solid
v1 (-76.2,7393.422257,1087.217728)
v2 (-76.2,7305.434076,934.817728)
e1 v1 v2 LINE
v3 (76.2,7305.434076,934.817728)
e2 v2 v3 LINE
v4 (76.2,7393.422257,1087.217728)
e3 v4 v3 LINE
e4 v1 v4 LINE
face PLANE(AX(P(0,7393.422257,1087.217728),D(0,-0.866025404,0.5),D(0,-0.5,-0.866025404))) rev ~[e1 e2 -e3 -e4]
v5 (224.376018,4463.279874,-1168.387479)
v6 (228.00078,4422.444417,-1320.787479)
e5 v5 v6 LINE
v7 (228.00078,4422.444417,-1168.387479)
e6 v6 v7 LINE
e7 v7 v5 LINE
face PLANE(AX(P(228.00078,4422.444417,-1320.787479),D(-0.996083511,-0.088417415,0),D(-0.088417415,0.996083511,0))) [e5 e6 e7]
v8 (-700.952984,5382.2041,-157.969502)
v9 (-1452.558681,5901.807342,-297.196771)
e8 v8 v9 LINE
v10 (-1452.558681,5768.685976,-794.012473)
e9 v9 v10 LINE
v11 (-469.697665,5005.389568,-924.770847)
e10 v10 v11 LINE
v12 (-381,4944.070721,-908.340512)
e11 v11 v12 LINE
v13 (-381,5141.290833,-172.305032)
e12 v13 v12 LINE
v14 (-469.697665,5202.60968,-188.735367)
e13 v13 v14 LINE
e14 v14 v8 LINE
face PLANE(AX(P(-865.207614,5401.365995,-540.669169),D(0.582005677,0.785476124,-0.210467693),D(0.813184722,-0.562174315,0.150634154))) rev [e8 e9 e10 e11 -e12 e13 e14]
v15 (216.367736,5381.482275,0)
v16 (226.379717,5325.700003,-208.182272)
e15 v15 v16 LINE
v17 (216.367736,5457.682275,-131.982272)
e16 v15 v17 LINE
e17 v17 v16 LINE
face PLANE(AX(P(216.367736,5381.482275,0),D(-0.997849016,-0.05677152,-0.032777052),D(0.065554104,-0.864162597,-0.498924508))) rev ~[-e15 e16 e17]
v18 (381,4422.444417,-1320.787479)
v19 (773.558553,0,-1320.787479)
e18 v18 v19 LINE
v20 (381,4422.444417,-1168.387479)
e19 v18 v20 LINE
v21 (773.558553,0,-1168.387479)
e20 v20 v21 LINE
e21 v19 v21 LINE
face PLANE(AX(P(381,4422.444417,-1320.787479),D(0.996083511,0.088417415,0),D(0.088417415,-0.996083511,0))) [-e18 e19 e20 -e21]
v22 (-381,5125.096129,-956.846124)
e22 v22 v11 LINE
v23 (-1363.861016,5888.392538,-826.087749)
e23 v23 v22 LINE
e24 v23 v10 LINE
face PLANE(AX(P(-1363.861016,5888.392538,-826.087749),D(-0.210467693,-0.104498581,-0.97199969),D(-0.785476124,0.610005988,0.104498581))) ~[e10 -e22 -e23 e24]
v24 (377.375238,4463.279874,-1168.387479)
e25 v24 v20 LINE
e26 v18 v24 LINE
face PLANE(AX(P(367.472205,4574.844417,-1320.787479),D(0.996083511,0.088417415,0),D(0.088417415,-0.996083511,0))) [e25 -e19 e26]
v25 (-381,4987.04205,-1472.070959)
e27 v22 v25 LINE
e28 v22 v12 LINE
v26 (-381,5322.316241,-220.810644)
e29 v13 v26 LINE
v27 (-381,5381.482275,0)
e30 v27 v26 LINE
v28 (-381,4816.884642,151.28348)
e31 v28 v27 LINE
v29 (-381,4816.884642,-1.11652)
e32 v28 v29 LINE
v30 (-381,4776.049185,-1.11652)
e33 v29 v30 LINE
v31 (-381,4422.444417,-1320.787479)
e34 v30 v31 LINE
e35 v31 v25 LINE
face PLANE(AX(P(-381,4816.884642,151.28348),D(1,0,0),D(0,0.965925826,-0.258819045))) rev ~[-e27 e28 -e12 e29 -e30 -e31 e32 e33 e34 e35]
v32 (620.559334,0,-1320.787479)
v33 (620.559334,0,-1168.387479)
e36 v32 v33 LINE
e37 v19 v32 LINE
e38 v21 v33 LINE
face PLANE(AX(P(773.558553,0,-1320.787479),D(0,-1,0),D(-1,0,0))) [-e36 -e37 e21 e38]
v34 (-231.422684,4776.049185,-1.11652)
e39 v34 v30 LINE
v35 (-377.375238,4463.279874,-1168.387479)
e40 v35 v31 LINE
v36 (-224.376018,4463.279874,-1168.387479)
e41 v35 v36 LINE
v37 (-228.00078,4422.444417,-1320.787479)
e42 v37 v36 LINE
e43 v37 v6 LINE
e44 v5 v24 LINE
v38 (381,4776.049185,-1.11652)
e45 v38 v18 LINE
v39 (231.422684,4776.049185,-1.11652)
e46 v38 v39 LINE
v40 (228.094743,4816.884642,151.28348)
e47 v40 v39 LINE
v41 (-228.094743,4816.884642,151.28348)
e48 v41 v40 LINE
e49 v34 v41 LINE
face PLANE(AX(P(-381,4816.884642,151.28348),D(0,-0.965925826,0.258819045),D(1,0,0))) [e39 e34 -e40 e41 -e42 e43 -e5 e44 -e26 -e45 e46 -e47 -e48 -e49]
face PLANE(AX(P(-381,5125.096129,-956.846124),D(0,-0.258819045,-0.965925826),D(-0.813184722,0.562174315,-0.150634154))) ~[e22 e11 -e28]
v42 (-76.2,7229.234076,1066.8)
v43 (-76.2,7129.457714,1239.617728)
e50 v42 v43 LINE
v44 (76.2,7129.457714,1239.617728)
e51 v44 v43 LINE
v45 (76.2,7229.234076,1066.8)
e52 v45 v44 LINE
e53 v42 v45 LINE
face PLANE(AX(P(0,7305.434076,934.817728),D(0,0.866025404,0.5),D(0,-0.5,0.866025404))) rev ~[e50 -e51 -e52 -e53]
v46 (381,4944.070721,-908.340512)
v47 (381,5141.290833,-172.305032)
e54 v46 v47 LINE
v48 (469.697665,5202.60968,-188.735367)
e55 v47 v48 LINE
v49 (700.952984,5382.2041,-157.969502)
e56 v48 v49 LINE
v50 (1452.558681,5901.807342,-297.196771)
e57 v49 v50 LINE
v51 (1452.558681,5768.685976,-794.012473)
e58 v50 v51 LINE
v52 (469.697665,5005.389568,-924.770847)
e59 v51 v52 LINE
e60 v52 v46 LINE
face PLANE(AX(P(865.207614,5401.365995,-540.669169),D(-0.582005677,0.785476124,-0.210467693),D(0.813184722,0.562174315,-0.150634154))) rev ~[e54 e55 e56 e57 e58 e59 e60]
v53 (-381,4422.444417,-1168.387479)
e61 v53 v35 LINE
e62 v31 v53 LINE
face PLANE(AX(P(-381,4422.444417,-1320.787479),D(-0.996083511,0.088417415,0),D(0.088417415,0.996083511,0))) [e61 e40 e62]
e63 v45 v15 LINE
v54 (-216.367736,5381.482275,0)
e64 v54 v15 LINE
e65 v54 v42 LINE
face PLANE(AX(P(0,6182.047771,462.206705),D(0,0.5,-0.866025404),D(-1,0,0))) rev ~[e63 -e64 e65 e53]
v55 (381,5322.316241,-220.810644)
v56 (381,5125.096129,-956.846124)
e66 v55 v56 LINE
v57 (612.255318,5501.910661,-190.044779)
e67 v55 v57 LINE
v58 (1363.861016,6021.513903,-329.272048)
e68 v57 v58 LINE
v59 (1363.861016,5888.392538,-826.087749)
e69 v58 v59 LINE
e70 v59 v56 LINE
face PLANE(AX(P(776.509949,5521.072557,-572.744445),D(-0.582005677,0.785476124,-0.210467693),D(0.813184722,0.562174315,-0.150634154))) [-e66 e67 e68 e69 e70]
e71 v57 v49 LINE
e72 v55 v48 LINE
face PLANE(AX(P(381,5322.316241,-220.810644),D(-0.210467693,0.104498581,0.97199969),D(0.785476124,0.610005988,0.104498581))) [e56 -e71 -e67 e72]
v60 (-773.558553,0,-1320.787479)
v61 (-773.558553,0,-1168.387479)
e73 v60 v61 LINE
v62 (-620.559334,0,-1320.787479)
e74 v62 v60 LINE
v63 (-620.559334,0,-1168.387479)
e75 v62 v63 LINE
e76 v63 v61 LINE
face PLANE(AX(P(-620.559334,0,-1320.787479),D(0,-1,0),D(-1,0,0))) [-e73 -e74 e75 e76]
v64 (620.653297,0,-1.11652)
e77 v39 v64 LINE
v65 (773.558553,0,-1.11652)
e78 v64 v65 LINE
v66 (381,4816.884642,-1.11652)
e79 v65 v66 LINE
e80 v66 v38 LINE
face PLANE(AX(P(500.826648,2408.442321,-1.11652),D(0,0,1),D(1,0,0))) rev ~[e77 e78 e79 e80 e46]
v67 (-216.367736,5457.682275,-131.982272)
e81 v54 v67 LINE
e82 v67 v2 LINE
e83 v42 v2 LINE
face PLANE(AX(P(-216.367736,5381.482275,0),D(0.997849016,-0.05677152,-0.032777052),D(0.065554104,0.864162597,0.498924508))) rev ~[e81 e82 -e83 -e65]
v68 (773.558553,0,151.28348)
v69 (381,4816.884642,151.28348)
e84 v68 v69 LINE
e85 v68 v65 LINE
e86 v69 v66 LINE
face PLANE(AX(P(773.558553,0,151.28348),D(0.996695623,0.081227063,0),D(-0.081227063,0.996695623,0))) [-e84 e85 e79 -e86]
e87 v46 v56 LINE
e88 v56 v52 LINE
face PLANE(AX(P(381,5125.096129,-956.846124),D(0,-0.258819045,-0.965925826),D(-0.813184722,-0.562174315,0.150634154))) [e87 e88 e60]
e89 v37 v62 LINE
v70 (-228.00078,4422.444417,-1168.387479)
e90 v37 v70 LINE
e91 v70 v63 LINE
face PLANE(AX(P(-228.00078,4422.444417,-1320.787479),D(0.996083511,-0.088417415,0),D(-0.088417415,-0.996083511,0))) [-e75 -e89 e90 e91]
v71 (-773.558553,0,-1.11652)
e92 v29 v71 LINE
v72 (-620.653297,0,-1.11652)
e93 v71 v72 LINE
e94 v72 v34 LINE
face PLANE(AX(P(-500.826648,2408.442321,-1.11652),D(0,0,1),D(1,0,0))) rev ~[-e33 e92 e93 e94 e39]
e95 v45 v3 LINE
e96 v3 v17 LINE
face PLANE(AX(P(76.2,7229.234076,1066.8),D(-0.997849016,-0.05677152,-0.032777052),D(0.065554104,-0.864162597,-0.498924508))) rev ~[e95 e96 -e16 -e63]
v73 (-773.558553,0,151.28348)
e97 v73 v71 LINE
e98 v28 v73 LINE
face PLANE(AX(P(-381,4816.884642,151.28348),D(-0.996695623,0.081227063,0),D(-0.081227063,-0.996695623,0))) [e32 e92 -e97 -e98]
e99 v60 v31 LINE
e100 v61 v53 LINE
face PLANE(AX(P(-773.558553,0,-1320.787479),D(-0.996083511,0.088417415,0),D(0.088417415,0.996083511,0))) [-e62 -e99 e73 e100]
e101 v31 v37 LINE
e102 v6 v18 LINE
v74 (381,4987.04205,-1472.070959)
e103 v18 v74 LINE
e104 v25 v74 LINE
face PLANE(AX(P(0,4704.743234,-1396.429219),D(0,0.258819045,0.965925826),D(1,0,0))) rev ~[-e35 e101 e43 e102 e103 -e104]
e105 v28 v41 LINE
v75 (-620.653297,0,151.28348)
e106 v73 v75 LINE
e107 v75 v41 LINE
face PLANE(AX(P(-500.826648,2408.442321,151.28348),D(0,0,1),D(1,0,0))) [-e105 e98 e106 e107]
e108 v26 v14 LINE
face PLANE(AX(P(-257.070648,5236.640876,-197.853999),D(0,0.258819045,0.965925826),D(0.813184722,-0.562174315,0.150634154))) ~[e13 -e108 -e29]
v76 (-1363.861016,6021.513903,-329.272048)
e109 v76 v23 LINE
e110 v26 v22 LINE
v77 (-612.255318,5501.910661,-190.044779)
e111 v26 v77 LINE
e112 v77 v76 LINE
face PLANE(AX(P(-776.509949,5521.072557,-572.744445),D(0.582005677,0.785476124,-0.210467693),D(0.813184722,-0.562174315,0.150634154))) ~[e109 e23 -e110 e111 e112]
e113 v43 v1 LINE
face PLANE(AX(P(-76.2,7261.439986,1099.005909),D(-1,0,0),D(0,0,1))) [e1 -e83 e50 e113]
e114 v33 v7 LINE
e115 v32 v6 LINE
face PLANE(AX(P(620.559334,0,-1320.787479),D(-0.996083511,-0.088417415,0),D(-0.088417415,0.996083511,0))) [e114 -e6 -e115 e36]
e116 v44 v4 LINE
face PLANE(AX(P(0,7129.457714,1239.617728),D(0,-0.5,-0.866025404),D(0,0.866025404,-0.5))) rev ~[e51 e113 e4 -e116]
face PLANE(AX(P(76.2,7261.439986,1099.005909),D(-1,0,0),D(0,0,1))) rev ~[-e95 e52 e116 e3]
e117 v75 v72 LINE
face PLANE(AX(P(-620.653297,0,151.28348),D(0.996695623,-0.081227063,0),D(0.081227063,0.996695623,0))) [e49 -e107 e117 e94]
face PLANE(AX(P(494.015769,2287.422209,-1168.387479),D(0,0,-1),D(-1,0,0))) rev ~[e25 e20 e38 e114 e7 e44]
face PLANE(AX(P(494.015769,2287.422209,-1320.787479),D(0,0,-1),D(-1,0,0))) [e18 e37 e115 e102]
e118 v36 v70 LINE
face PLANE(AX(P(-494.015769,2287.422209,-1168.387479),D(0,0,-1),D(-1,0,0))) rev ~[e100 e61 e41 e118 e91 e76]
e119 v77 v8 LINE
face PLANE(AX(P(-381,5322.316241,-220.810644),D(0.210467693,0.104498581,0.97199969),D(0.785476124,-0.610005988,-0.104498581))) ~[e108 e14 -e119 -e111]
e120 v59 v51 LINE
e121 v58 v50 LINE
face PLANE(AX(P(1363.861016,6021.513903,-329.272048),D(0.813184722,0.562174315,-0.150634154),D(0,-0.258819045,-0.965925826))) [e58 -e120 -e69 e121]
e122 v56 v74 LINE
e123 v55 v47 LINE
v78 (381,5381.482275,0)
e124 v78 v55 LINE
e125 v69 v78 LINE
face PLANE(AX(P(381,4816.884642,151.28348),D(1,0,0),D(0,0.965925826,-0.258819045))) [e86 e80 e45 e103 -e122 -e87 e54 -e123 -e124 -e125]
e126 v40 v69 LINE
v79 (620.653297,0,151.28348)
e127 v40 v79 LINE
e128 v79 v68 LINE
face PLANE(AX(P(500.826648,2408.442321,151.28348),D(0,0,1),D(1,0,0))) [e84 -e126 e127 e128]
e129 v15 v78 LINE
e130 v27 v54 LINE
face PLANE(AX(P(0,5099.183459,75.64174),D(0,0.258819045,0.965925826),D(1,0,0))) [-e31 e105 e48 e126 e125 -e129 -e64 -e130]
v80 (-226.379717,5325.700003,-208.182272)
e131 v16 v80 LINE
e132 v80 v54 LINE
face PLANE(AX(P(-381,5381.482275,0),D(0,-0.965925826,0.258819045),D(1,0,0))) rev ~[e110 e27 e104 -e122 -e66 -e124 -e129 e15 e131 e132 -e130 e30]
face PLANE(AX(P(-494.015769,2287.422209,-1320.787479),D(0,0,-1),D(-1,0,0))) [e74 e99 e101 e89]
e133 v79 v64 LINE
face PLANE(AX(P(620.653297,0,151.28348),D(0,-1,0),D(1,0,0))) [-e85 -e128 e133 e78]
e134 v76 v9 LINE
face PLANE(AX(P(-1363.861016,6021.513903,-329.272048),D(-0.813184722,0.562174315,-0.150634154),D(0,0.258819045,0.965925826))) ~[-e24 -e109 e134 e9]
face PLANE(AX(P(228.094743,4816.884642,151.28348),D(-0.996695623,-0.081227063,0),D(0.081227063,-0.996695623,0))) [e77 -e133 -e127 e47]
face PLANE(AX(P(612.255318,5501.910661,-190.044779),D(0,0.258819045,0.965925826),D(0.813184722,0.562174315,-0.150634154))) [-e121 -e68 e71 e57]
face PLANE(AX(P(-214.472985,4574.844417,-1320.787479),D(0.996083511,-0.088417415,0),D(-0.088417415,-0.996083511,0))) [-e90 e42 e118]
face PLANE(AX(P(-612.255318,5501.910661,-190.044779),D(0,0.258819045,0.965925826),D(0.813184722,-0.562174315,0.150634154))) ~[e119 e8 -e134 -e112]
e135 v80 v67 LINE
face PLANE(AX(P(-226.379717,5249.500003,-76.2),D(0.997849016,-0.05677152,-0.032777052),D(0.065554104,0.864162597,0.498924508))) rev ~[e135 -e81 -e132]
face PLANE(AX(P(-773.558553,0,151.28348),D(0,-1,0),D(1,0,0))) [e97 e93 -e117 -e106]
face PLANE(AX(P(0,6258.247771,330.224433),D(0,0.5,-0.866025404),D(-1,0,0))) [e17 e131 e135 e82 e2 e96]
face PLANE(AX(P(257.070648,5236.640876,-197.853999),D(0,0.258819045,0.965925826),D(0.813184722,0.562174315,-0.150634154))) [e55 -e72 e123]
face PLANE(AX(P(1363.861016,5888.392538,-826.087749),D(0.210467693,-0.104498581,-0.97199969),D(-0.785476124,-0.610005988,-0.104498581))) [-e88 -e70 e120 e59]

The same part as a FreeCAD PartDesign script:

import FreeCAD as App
import Part
import Sketcher
Q = App.Units.Quantity


def add_polygon(sketch, points):
    """Adds a closed chain of lines whose ends are joined by coincident constraints."""
    first, n = sketch.GeometryCount, len(points)
    for a, b in zip(points, points[1:] + points[:1]):
        sketch.addGeometry(Part.LineSegment(App.Vector(*a, 0), App.Vector(*b, 0)), False)
    for i in range(n):
        sketch.addConstraint(Sketcher.Constraint("Coincident", first + i, 2, first + (i + 1) % n, 1))

doc = App.newDocument("Part")
params = doc.addObject("Spreadsheet::Sheet", "Params")
for row, (alias, value) in enumerate([
    ("sketch1_width", "30 in"),
    ("pad1_length", "60 in"),
    ("sketch2_width", "6 in"),
    ("sketch2_height", "30 in"),
    ("pad2_length", "6 in"),
    ("sketch3_width", "6 in"),
    ("pad3_length", "6 in"),
    ("sketch4_length", "12 in"),
    ("pad4_length", "6 in"),
    ("pad5_length", "6 in"),
    ("pad6_length", "6 in"),
], start=1):
    params.set(f"A{row}", alias)
    params.set(f"B{row}", "=" + value)
    params.setAlias(f"B{row}", alias)

body = doc.addObject("PartDesign::Body", "Body")

# Sketch on an angled plane
sketch1 = doc.addObject("Sketcher::SketchObject", "Sketch")
body.addObject(sketch1)
sketch1.Placement = App.Placement(App.Vector(0, 360.490957, 1345.370569), App.Rotation(App.Vector(1, 0, 0), App.Vector(0, 0.965925826, -0.258819045), App.Vector(0, 0.258819045, 0.965925826), "ZXY"))
add_polygon(sketch1, [(-381, 5198), (-381, 4614), (381, 4614), (381, 5198)])  # lines 0-3
sketch1.addConstraint([
    Sketcher.Constraint("Vertical", 0),
    Sketcher.Constraint("Horizontal", 1),
    Sketcher.Constraint("Vertical", 2),
    Sketcher.Constraint("Horizontal", 3),
    Sketcher.Constraint("DistanceX", 1, 1, 1, 2, Q("30 in")),
    Sketcher.Constraint("DistanceX", 0, 2, -1, 1, Q("15 in")),
    Sketcher.Constraint("DistanceY", 0, 2, 0, 1, 584.51448),
    Sketcher.Constraint("DistanceY", -1, 1, 0, 2, 4613.598229),
])
sketch1.setExpression("Constraints[8]", "Params.sketch1_width")
pad1 = doc.addObject("PartDesign::Pad", "Pad")
body.addObject(pad1)
pad1.Profile = sketch1
pad1.setExpression("Length", "Params.pad1_length")
pad1.Reversed = True

# Sketch on an angled plane
sketch2 = doc.addObject("Sketcher::SketchObject", "Sketch001")
body.addObject(sketch2)
sketch2.Placement = App.Placement(App.Vector(-2331.096675, 3146.053127, -842.982395), App.Rotation(App.Vector(0.813184722, 0.562174315, -0.150634154), App.Vector(0, -0.258819045, -0.965925826), App.Vector(-0.582005677, 0.785476124, -0.210467693), "ZXY"))
add_polygon(sketch2, [(3335, -1164), (3620, -1240), (4544, -1240), (4544, -726), (3335, -402), (3183, -402), (3183, -1164)])  # lines 0-6
sketch2.addConstraint([
    Sketcher.Constraint("Horizontal", 1),
    Sketcher.Constraint("Vertical", 2),
    Sketcher.Constraint("Horizontal", 4),
    Sketcher.Constraint("Vertical", 5),
    Sketcher.Constraint("Horizontal", 6),
    Sketcher.Constraint("Parallel", 0, 3),
    Sketcher.Constraint("Vertical", 3, 2, 6, 2),
    Sketcher.Constraint("DistanceX", 4, 2, 4, 1, Q("6 in")),
    Sketcher.Constraint("DistanceY", 5, 2, 5, 1, Q("30 in")),
    Sketcher.Constraint("Angle", 0, Q("-15 deg")),
    Sketcher.Constraint("DistanceY", 0, 2, 3, 2, Q("33 in")),
    Sketcher.Constraint("DistanceX", 1, 1, 1, 2, 924.274249),
    Sketcher.Constraint("DistanceX", -1, 1, 0, 2, 3619.536765),
    Sketcher.Constraint("DistanceY", 0, 2, -1, 1, 1240.430104),
])
sketch2.setExpression("Constraints[14]", "Params.sketch2_width")
sketch2.setExpression("Constraints[15]", "Params.sketch2_height")
pad2 = doc.addObject("PartDesign::Pad", "Pad001")
body.addObject(pad2)
pad2.Profile = sketch2
pad2.setExpression("Length", "Params.pad2_length")
pad2.Reversed = True
doc.recompute()

mirrored = doc.addObject("PartDesign::Mirrored", "Mirrored")
body.addObject(mirrored)
mirrored.Originals = [pad2]
mirrored.MirrorPlane = (doc.YZ_Plane, [""])
body.Tip = mirrored

# Sketch on an angled plane
sketch3 = doc.addObject("Sketcher::SketchObject", "Sketch002")
body.addObject(sketch3)
sketch3.Placement = App.Placement(App.Vector(0, 1345.370569, -2330.25018), App.Rotation(App.Vector(1, 0, 0), App.Vector(0, 0.866025404, 0.5), App.Vector(0, -0.5, 0.866025404), "ZXY"))
add_polygon(sketch3, [(-76, 6794), (-216, 4661), (-226, 4508), (226, 4508), (216, 4661), (76, 6794)])  # lines 0-5
sketch3.addConstraint([
    Sketcher.Constraint("Horizontal", 2),
    Sketcher.Constraint("Horizontal", 5),
    Sketcher.Constraint("Symmetric", 0, 2, 3, 2, -2),
    Sketcher.Constraint("Parallel", 0, 1),
    Sketcher.Constraint("Parallel", 3, 4),
    Sketcher.Constraint("Equal", 1, 3),
    Sketcher.Constraint("DistanceX", 5, 2, 5, 1, Q("6 in")),
    Sketcher.Constraint("DistanceY", 1, 2, 0, 2, Q("6 in")),
    Sketcher.Constraint("DistanceY", 3, 2, 4, 2, Q("84 in")),
    Sketcher.Constraint("DistanceX", 2, 1, 2, 2, 452.759433),
    Sketcher.Constraint("DistanceY", -1, 1, 0, 2, 4660.500362),
])
sketch3.setExpression("Constraints[12]", "Params.sketch3_width")
pad3 = doc.addObject("PartDesign::Pad", "Pad002")
body.addObject(pad3)
pad3.Profile = sketch3
pad3.setExpression("Length", "Params.pad3_length")
pad3.Reversed = True

# Sketch on YZ plane
sketch4 = doc.addObject("Sketcher::SketchObject", "Sketch003")
body.addObject(sketch4)
sketch4.AttachmentSupport = (doc.YZ_Plane, [""])
sketch4.MapMode = "FlatFace"
add_polygon(sketch4, [(7129, 1240), (7305, 935), (7393, 1087)])  # lines 0-2
sketch4.addConstraint([
    Sketcher.Constraint("Perpendicular", 1, 2),
    Sketcher.Constraint("Distance", 2, Q("12 in")),
    Sketcher.Constraint("Angle", 0, Q("-60 deg")),
    Sketcher.Constraint("Angle", 1, Q("60 deg")),
    Sketcher.Constraint("DistanceY", -1, 1, 0, 2, 934.817728),
    Sketcher.Constraint("DistanceX", -1, 1, 0, 2, 7305.434076),
])
sketch4.setExpression("Constraints[4]", "Params.sketch4_length")
pad4 = doc.addObject("PartDesign::Pad", "Pad003")
body.addObject(pad4)
pad4.Profile = sketch4
pad4.setExpression("Length", "Params.pad4_length")
pad4.Midplane = True

# Sketch on XY plane
sketch5 = doc.addObject("Sketcher::SketchObject", "Sketch004")
body.addObject(sketch5)
sketch5.AttachmentSupport = (doc.XY_Plane, [""])
sketch5.MapMode = "FlatFace"
sketch5.AttachmentOffset = App.Placement(App.Vector(0, 0, 151.28348), App.Rotation())
add_polygon(sketch5, [(-381, 4817), (-774, 0), (-621, 0), (-228, 4817)])  # lines 0-3
add_polygon(sketch5, [(774, 0), (381, 4817), (228, 4817), (621, 0)])  # lines 4-7
sketch5.addConstraint([
    Sketcher.Constraint("Horizontal", 1),
    Sketcher.Constraint("Horizontal", 3),
    Sketcher.Constraint("Horizontal", 5),
    Sketcher.Constraint("Horizontal", 7),
    Sketcher.Constraint("Symmetric", 1, 2, 6, 2, -1, 1),
    Sketcher.Constraint("Symmetric", 3, 2, 4, 2, -2),
    Sketcher.Constraint("Symmetric", 0, 2, 7, 2, -2),
    Sketcher.Constraint("Parallel", 0, 2),
    Sketcher.Constraint("Parallel", 4, 6),
    Sketcher.Constraint("DistanceX", 3, 2, -1, 1, Q("15 in")),
    Sketcher.Constraint("DistanceX", 1, 1, 1, 2, 152.905257),
    Sketcher.Constraint("DistanceX", 0, 2, 2, 2, 545.46381),
    Sketcher.Constraint("Distance", 0, 4832.854216),
])
pad5 = doc.addObject("PartDesign::Pad", "Pad004")
body.addObject(pad5)
pad5.Profile = sketch5
pad5.setExpression("Length", "Params.pad5_length")
pad5.Reversed = True

# Sketch on XY plane
sketch6 = doc.addObject("Sketcher::SketchObject", "Sketch005")
body.addObject(sketch6)
sketch6.AttachmentSupport = (doc.XY_Plane, [""])
sketch6.MapMode = "FlatFace"
sketch6.AttachmentOffset = App.Placement(App.Vector(0, 0, -1320.787479), App.Rotation())
add_polygon(sketch6, [(774, 0), (381, 4422), (367, 4575), (214, 4575), (228, 4422), (621, 0)])  # lines 0-5
add_polygon(sketch6, [(-381, 4422), (-774, 0), (-621, 0), (-228, 4422), (-214, 4575), (-367, 4575)])  # lines 6-11
sketch6.addConstraint([
    Sketcher.Constraint("Horizontal", 2),
    Sketcher.Constraint("Horizontal", 5),
    Sketcher.Constraint("Horizontal", 7),
    Sketcher.Constraint("Horizontal", 10),
    Sketcher.Constraint("Symmetric", 5, 2, 6, 2, -1, 1),
    Sketcher.Constraint("Symmetric", 4, 2, 7, 2, -2),
    Sketcher.Constraint("Symmetric", 3, 2, 8, 2, -2),
    Sketcher.Constraint("Symmetric", 2, 2, 9, 2, -2),
    Sketcher.Constraint("Symmetric", 0, 2, 11, 2, -2),
    Sketcher.Constraint("Parallel", 0, 1),
    Sketcher.Constraint("Parallel", 1, 3),
    Sketcher.Constraint("Parallel", 3, 4),
    Sketcher.Constraint("Parallel", 9, 11),
    Sketcher.Constraint("Horizontal", 0, 2, 3, 2),
    Sketcher.Constraint("DistanceX", -1, 1, 0, 2, Q("15 in")),
    Sketcher.Constraint("DistanceY", 0, 2, 1, 2, Q("6 in")),
    Sketcher.Constraint("DistanceX", 2, 2, 2, 1, 152.99922),
    Sketcher.Constraint("DistanceX", 1, 2, 4, 2, 253.087129),
    Sketcher.Constraint("Distance", 0, 4439.832975),
])
pad6 = doc.addObject("PartDesign::Pad", "Pad005")
body.addObject(pad6)
pad6.Profile = sketch6
pad6.setExpression("Length", "Params.pad6_length")

doc.recompute()
